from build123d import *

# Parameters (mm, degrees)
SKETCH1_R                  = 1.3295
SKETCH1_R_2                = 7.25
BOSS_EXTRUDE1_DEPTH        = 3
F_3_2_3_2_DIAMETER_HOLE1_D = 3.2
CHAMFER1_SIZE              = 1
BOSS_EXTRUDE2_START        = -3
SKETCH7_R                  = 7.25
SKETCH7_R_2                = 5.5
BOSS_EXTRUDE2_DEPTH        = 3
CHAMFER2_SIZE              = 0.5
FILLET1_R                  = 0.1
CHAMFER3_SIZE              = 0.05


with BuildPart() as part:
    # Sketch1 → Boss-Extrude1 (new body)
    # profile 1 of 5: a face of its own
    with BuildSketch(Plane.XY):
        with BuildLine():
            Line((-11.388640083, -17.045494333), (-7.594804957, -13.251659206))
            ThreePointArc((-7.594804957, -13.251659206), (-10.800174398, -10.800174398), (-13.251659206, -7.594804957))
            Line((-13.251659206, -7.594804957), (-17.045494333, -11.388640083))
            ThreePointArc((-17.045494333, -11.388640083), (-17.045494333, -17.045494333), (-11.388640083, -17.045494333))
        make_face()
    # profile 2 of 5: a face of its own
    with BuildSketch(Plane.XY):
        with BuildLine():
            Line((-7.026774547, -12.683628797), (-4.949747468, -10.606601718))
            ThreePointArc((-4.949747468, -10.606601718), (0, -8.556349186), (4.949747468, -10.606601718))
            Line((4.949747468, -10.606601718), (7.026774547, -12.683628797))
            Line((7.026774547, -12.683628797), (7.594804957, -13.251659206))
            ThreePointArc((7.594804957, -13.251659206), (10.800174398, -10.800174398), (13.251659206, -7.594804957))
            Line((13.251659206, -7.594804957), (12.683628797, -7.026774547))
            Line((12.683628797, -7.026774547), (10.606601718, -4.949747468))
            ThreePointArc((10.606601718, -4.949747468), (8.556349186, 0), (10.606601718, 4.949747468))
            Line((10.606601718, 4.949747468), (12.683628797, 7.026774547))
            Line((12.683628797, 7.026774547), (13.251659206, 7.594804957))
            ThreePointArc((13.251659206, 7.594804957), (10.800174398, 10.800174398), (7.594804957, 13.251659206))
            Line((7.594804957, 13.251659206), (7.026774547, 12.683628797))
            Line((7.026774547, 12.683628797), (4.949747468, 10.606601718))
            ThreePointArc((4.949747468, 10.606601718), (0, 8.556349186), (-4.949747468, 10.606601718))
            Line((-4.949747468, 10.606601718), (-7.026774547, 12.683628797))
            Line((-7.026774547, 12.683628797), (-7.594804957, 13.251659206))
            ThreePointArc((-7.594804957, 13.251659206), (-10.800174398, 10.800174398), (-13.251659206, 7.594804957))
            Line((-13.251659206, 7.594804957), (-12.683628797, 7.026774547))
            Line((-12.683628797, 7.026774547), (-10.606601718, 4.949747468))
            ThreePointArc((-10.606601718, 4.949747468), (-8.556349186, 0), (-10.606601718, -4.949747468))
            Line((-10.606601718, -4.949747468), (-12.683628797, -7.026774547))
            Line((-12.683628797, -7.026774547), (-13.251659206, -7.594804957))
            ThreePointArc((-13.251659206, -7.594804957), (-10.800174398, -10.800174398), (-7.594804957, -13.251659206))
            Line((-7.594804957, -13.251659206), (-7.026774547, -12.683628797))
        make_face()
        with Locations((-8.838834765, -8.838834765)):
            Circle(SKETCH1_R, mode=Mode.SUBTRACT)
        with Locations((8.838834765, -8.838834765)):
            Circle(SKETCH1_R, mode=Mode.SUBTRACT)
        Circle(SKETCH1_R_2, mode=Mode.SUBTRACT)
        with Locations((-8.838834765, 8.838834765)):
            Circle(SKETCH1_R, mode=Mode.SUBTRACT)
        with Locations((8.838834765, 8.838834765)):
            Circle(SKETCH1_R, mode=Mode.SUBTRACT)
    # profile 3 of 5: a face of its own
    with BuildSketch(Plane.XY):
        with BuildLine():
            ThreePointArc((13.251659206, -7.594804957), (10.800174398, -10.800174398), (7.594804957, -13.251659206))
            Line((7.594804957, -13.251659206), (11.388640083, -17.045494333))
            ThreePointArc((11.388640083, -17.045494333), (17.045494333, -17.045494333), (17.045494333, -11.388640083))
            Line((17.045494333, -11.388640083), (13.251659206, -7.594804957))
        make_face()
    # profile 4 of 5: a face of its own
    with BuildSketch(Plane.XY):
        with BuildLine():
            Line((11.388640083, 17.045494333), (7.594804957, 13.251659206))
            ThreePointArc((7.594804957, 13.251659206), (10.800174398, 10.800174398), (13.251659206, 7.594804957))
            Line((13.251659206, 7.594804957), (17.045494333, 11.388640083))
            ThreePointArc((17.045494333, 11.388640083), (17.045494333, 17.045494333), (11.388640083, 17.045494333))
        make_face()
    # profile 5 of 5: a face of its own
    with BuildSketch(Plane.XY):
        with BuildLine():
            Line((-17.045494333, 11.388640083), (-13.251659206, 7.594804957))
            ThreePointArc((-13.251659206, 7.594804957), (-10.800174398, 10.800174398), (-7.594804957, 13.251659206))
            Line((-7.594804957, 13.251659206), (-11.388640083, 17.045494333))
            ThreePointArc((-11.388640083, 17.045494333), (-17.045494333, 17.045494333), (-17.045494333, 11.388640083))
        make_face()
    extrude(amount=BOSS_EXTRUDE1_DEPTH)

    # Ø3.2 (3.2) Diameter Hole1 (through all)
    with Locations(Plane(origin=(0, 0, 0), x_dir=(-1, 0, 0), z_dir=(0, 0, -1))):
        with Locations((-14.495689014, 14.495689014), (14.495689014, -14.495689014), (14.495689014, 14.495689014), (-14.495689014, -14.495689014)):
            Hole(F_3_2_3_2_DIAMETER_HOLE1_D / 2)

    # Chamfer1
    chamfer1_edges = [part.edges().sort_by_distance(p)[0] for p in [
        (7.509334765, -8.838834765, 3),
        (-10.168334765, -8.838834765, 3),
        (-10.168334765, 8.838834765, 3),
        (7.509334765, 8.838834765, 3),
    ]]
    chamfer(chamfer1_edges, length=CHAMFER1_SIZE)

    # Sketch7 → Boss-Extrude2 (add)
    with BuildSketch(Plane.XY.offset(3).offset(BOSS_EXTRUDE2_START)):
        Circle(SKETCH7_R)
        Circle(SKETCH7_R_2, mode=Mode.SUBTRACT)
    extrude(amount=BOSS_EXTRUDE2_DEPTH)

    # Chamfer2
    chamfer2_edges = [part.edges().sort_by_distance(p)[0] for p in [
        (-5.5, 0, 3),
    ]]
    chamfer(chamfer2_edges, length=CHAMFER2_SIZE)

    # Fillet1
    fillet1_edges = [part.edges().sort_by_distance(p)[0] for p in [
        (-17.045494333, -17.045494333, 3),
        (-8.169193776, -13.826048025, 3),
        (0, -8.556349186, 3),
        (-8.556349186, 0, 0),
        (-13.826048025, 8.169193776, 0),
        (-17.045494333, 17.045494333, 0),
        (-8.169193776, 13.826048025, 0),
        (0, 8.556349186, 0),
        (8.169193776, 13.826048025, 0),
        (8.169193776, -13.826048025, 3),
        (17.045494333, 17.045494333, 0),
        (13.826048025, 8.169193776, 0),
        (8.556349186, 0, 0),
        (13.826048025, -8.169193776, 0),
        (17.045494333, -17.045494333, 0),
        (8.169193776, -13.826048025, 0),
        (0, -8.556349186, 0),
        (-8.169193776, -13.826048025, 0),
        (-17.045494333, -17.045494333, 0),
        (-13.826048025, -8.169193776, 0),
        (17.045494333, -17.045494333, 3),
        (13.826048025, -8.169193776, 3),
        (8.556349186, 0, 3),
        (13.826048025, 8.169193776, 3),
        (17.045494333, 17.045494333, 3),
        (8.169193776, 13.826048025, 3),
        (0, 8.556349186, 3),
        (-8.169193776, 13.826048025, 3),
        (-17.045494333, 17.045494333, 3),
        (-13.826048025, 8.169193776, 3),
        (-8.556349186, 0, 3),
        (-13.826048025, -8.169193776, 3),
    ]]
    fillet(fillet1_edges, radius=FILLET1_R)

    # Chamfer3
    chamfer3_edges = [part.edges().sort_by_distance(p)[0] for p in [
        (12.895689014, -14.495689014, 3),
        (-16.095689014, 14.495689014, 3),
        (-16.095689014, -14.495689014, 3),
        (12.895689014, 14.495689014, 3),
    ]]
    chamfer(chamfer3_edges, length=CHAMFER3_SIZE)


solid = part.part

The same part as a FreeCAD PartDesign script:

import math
import FreeCAD as App
import Part
import Sketcher

V = App.Vector


def edges_at(feature, points):
    """Names of the edges that pass closest to the given points."""
    edges = feature.Shape.Edges
    near = lambda p: min(range(len(edges)), key=lambda i: edges[i].distToShape(Part.Vertex(*p))[0])
    return sorted({f"Edge{near(p) + 1}" for p in points})

doc = App.newDocument("Part")
body = doc.addObject("PartDesign::Body", "Body")

# Sketch on XY plane
sketch1 = body.newObject("Sketcher::SketchObject", "Sketch")
sketch1.AttachmentSupport = (doc.getObject("XY_Plane"), [""])
sketch1.MapMode = "FlatFace"
sketch1.addGeometry(Part.LineSegment(V(-11.4, -17, 0), V(-7.6, -13.3, 0)), False)
sketch1.addGeometry(Part.LineSegment(V(-7.6, -13.3, 0), V(-7, -12.7, 0)), False)
sketch1.addGeometry(Part.LineSegment(V(-7, -12.7, 0), V(-4.9, -10.6, 0)), False)
sketch1.addGeometry(Part.ArcOfCircle(Part.Circle(V(0, -15.6, 0), V(0, 0, 1), 7), math.radians(45), math.radians(135)), False)
sketch1.addGeometry(Part.LineSegment(V(4.9, -10.6, 0), V(7, -12.7, 0)), False)
sketch1.addGeometry(Part.LineSegment(V(7, -12.7, 0), V(7.6, -13.3, 0)), False)
sketch1.addGeometry(Part.LineSegment(V(7.6, -13.3, 0), V(11.4, -17, 0)), False)
sketch1.addGeometry(Part.ArcOfCircle(Part.Circle(V(14.2, -14.2, 0), V(0, 0, 1), 4), math.radians(-135), math.radians(45)), False)
sketch1.addGeometry(Part.LineSegment(V(17, -11.4, 0), V(13.3, -7.6, 0)), False)
sketch1.addGeometry(Part.LineSegment(V(13.3, -7.6, 0), V(12.7, -7, 0)), False)
sketch1.addGeometry(Part.LineSegment(V(12.7, -7, 0), V(10.6, -4.9, 0)), False)
sketch1.addGeometry(Part.ArcOfCircle(Part.Circle(V(15.6, 0, 0), V(0, 0, 1), 7), math.radians(135), math.radians(225)), False)
sketch1.addGeometry(Part.LineSegment(V(10.6, 4.9, 0), V(12.7, 7, 0)), False)
sketch1.addGeometry(Part.LineSegment(V(12.7, 7, 0), V(13.3, 7.6, 0)), False)
sketch1.addGeometry(Part.LineSegment(V(13.3, 7.6, 0), V(17, 11.4, 0)), False)
sketch1.addGeometry(Part.ArcOfCircle(Part.Circle(V(14.2, 14.2, 0), V(0, 0, 1), 4), math.radians(-45), math.radians(135)), False)
sketch1.addGeometry(Part.LineSegment(V(11.4, 17, 0), V(7.6, 13.3, 0)), False)
sketch1.addGeometry(Part.LineSegment(V(7.6, 13.3, 0), V(7, 12.7, 0)), False)
sketch1.addGeometry(Part.LineSegment(V(7, 12.7, 0), V(4.9, 10.6, 0)), False)
sketch1.addGeometry(Part.ArcOfCircle(Part.Circle(V(0, 15.6, 0), V(0, 0, 1), 7), math.radians(-135), math.radians(-45)), False)
sketch1.addGeometry(Part.LineSegment(V(-4.9, 10.6, 0), V(-7, 12.7, 0)), False)
sketch1.addGeometry(Part.LineSegment(V(-7, 12.7, 0), V(-7.6, 13.3, 0)), False)
sketch1.addGeometry(Part.LineSegment(V(-7.6, 13.3, 0), V(-11.4, 17, 0)), False)
sketch1.addGeometry(Part.ArcOfCircle(Part.Circle(V(-14.2, 14.2, 0), V(0, 0, 1), 4), math.radians(45), math.radians(225)), False)
sketch1.addGeometry(Part.LineSegment(V(-17, 11.4, 0), V(-13.3, 7.6, 0)), False)
sketch1.addGeometry(Part.LineSegment(V(-13.3, 7.6, 0), V(-12.7, 7, 0)), False)
sketch1.addGeometry(Part.LineSegment(V(-12.7, 7, 0), V(-10.6, 4.9, 0)), False)
sketch1.addGeometry(Part.ArcOfCircle(Part.Circle(V(-15.6, 0, 0), V(0, 0, 1), 7), math.radians(-45), math.radians(45)), False)
sketch1.addGeometry(Part.LineSegment(V(-10.6, -4.9, 0), V(-12.7, -7, 0)), False)
sketch1.addGeometry(Part.LineSegment(V(-12.7, -7, 0), V(-13.3, -7.6, 0)), False)
sketch1.addGeometry(Part.LineSegment(V(-13.3, -7.6, 0), V(-17, -11.4, 0)), False)
sketch1.addGeometry(Part.ArcOfCircle(Part.Circle(V(-14.2, -14.2, 0), V(0, 0, 1), 4), math.radians(135), math.radians(315)), False)
sketch1.addGeometry(Part.Circle(V(8.8, 8.8, 0), V(0, 0, 1), 1.3), False)
sketch1.addGeometry(Part.Circle(V(-8.8, -8.8, 0), V(0, 0, 1), 1.3), False)
sketch1.addGeometry(Part.Circle(V(8.8, -8.8, 0), V(0, 0, 1), 1.3), False)
sketch1.addGeometry(Part.Circle(V(-8.8, 8.8, 0), V(0, 0, 1), 1.3), False)
sketch1.addGeometry(Part.Circle(V(0, 0, 0), V(0, 0, 1), 7.2), False)
sketch1.addConstraint(Sketcher.Constraint("Coincident", 0, 2, 1, 1))
sketch1.addConstraint(Sketcher.Constraint("Coincident", 1, 2, 2, 1))
sketch1.addConstraint(Sketcher.Constraint("Tangent", 2, 2, 3, 2))
sketch1.addConstraint(Sketcher.Constraint("Tangent", 3, 1, 4, 1))
sketch1.addConstraint(Sketcher.Constraint("Coincident", 4, 2, 5, 1))
sketch1.addConstraint(Sketcher.Constraint("Coincident", 5, 2, 6, 1))
sketch1.addConstraint(Sketcher.Constraint("Tangent", 6, 2, 7, 1))
sketch1.addConstraint(Sketcher.Constraint("Tangent", 7, 2, 8, 1))
sketch1.addConstraint(Sketcher.Constraint("Coincident", 8, 2, 9, 1))
sketch1.addConstraint(Sketcher.Constraint("Coincident", 9, 2, 10, 1))
sketch1.addConstraint(Sketcher.Constraint("Tangent", 10, 2, 11, 2))
sketch1.addConstraint(Sketcher.Constraint("Tangent", 11, 1, 12, 1))
sketch1.addConstraint(Sketcher.Constraint("Coincident", 12, 2, 13, 1))
sketch1.addConstraint(Sketcher.Constraint("Coincident", 13, 2, 14, 1))
sketch1.addConstraint(Sketcher.Constraint("Tangent", 14, 2, 15, 1))
sketch1.addConstraint(Sketcher.Constraint("Tangent", 15, 2, 16, 1))
sketch1.addConstraint(Sketcher.Constraint("Coincident", 16, 2, 17, 1))
sketch1.addConstraint(Sketcher.Constraint("Coincident", 17, 2, 18, 1))
sketch1.addConstraint(Sketcher.Constraint("Tangent", 18, 2, 19, 2))
sketch1.addConstraint(Sketcher.Constraint("Tangent", 19, 1, 20, 1))
sketch1.addConstraint(Sketcher.Constraint("Coincident", 20, 2, 21, 1))
sketch1.addConstraint(Sketcher.Constraint("Coincident", 21, 2, 22, 1))
sketch1.addConstraint(Sketcher.Constraint("Tangent", 22, 2, 23, 1))
sketch1.addConstraint(Sketcher.Constraint("Tangent", 23, 2, 24, 1))
sketch1.addConstraint(Sketcher.Constraint("Coincident", 24, 2, 25, 1))
sketch1.addConstraint(Sketcher.Constraint("Coincident", 25, 2, 26, 1))
sketch1.addConstraint(Sketcher.Constraint("Tangent", 26, 2, 27, 2))
sketch1.addConstraint(Sketcher.Constraint("Tangent", 27, 1, 28, 1))
sketch1.addConstraint(Sketcher.Constraint("Coincident", 28, 2, 29, 1))
sketch1.addConstraint(Sketcher.Constraint("Coincident", 29, 2, 30, 1))
sketch1.addConstraint(Sketcher.Constraint("Tangent", 30, 2, 31, 1))
sketch1.addConstraint(Sketcher.Constraint("Tangent", 31, 2, 0, 1))
sketch1.addConstraint(Sketcher.Constraint("Coincident", 36, 3, -1, 1))
sketch1.addConstraint(Sketcher.Constraint("Equal", 3, 11))
sketch1.addConstraint(Sketcher.Constraint("Equal", 7, 15))
sketch1.addConstraint(Sketcher.Constraint("Equal", 11, 19))
sketch1.addConstraint(Sketcher.Constraint("Equal", 15, 23))
sketch1.addConstraint(Sketcher.Constraint("Equal", 19, 27))
sketch1.addConstraint(Sketcher.Constraint("Equal", 23, 31))
sketch1.addConstraint(Sketcher.Constraint("Equal", 32, 33))
sketch1.addConstraint(Sketcher.Constraint("Equal", 33, 34))
sketch1.addConstraint(Sketcher.Constraint("Equal", 34, 35))
sketch1.addConstraint(Sketcher.Constraint("Symmetric", 3, 3, 19, 3, -1, 1))
sketch1.addConstraint(Sketcher.Constraint("Symmetric", 7, 3, 23, 3, -1, 1))
sketch1.addConstraint(Sketcher.Constraint("Symmetric", 11, 3, 27, 3, -1, 1))
sketch1.addConstraint(Sketcher.Constraint("Symmetric", 15, 3, 31, 3, -1, 1))
sketch1.addConstraint(Sketcher.Constraint("Symmetric", 32, 3, 33, 3, -1, 1))
sketch1.addConstraint(Sketcher.Constraint("Symmetric", 34, 3, 35, 3, -1, 1))
sketch1.addConstraint(Sketcher.Constraint("Symmetric", 0, 2, 16, 2, -1, 1))
sketch1.addConstraint(Sketcher.Constraint("Symmetric", 1, 2, 17, 2, -1, 1))
sketch1.addConstraint(Sketcher.Constraint("Symmetric", 4, 2, 20, 2, -1, 1))
sketch1.addConstraint(Sketcher.Constraint("Symmetric", 5, 2, 21, 2, -1, 1))
sketch1.addConstraint(Sketcher.Constraint("Symmetric", 8, 2, 24, 2, -1, 1))
sketch1.addConstraint(Sketcher.Constraint("Symmetric", 9, 2, 25, 2, -1, 1))
sketch1.addConstraint(Sketcher.Constraint("Symmetric", 12, 2, 28, 2, -1, 1))
sketch1.addConstraint(Sketcher.Constraint("Symmetric", 13, 2, 29, 2, -1, 1))
sketch1.addConstraint(Sketcher.Constraint("Symmetric", 15, 3, 23, 3, -2))
sketch1.addConstraint(Sketcher.Constraint("Symmetric", 33, 3, 34, 3, -2))
sketch1.addConstraint(Sketcher.Constraint("Symmetric", 2, 2, 3, 1, -2))
sketch1.addConstraint(Sketcher.Constraint("Symmetric", 0, 2, 5, 2, -2))
sketch1.addConstraint(Sketcher.Constraint("Symmetric", 13, 2, 24, 2, -2))
sketch1.addConstraint(Sketcher.Constraint("Symmetric", 12, 2, 25, 2, -2))
sketch1.addConstraint(Sketcher.Constraint("PointOnObject", 11, 3, -1))
sketch1.addConstraint(Sketcher.Constraint("Parallel", 0, 1))
sketch1.addConstraint(Sketcher.Constraint("Parallel", 1, 2))
sketch1.addConstraint(Sketcher.Constraint("Perpendicular", 2, 4))
sketch1.addConstraint(Sketcher.Constraint("Parallel", 6, 8))
sketch1.addConstraint(Sketcher.Constraint("Parallel", 8, 9))
sketch1.addConstraint(Sketcher.Constraint("Parallel", 9, 10))
sketch1.addConstraint(Sketcher.Constraint("Horizontal", 1, 2, 4, 2))
sketch1.addConstraint(Sketcher.Constraint("Equal", 6, 8))
sketch1.addConstraint(Sketcher.Constraint("Equal", 5, 9))
sketch1.addConstraint(Sketcher.Constraint("Equal", 4, 10))
sketch1.addConstraint(Sketcher.Constraint("Radius", 3, 7.0))
sketch1.addConstraint(Sketcher.Constraint("Radius", 7, 4.0))
sketch1.addConstraint(Sketcher.Constraint("Diameter", 36, 14.5))
sketch1.addConstraint(Sketcher.Constraint("Diameter", 32, 2.659))
sketch1.addConstraint(Sketcher.Constraint("DistanceY", 7, 3, 32, 3, 23.055902))
sketch1.addConstraint(Sketcher.Constraint("DistanceX", 23, 3, 32, 3, 23.055902))
sketch1.addConstraint(Sketcher.Constraint("Distance", 2, 2.93736))
sketch1.addConstraint(Sketcher.Constraint("DistanceY", 0, 2, -1, 1, 13.251659))
sketch1.addConstraint(Sketcher.Constraint("DistanceX", -1, 1, 6, 2, 11.38864))
pad1 = body.newObject("PartDesign::Pad", "Pad")
pad1.Profile = sketch1
pad1.Length = 3

# Sketch on XY plane
sketch2 = body.newObject("Sketcher::SketchObject", "Sketch001")
sketch2.AttachmentSupport = (doc.getObject("XY_Plane"), [""])
sketch2.MapMode = "FlatFace"
sketch2.addGeometry(Part.Circle(V(14.5, 14.5, 0), V(0, 0, 1), 1.6), False)
sketch2.addGeometry(Part.Circle(V(-14.5, -14.5, 0), V(0, 0, 1), 1.6), False)
sketch2.addGeometry(Part.Circle(V(-14.5, 14.5, 0), V(0, 0, 1), 1.6), False)
sketch2.addGeometry(Part.Circle(V(14.5, -14.5, 0), V(0, 0, 1), 1.6), False)
sketch2.addConstraint(Sketcher.Constraint("Equal", 0, 1))
sketch2.addConstraint(Sketcher.Constraint("Equal", 1, 2))
sketch2.addConstraint(Sketcher.Constraint("Equal", 2, 3))
sketch2.addConstraint(Sketcher.Constraint("Symmetric", 0, 3, 1, 3, -1, 1))
sketch2.addConstraint(Sketcher.Constraint("Symmetric", 2, 3, 3, 3, -1, 1))
sketch2.addConstraint(Sketcher.Constraint("Symmetric", 0, 3, 2, 3, -2))
sketch2.addConstraint(Sketcher.Constraint("Diameter", 0, 3.2))
sketch2.addConstraint(Sketcher.Constraint("DistanceX", -1, 1, 0, 3, 14.495689))
sketch2.addConstraint(Sketcher.Constraint("DistanceY", -1, 1, 0, 3, 14.495689))
doc.recompute()
hole = body.newObject("PartDesign::Hole", "Hole")
hole.Profile = sketch2
hole.ThreadType = "None"
hole.Diameter = 3.2
hole.DepthType = "ThroughAll"
hole.Reversed = True
doc.recompute()

chamfer = body.newObject("PartDesign::Chamfer", "Chamfer")
chamfer.Base = (hole, edges_at(hole, [
    (7.509, -8.839, 3),
    (-10.168, -8.839, 3),
    (-10.168, 8.839, 3),
    (7.509, 8.839, 3),
]))
chamfer.Size = 1

# Sketch on XY plane
sketch3 = body.newObject("Sketcher::SketchObject", "Sketch002")
sketch3.AttachmentSupport = (doc.getObject("XY_Plane"), [""])
sketch3.MapMode = "FlatFace"
sketch3.addGeometry(Part.Circle(V(0, 0, 0), V(0, 0, 1), 7), False)
sketch3.addGeometry(Part.Circle(V(0, 0, 0), V(0, 0, 1), 6), False)
sketch3.addConstraint(Sketcher.Constraint("Coincident", 0, 3, -1, 1))
sketch3.addConstraint(Sketcher.Constraint("Coincident", 1, 3, -1, 1))
sketch3.addConstraint(Sketcher.Constraint("Diameter", 1, 11.0))
sketch3.addConstraint(Sketcher.Constraint("Diameter", 0, 14.5))
pad2 = body.newObject("PartDesign::Pad", "Pad001")
pad2.Profile = sketch3
pad2.Length = 3
doc.recompute()

chamfer2 = body.newObject("PartDesign::Chamfer", "Chamfer001")
chamfer2.Base = (pad2, edges_at(pad2, [(-5.5, 0, 3)]))
chamfer2.Size = 0.5
doc.recompute()

fillet = body.newObject("PartDesign::Fillet", "Fillet")
fillet.Base = (chamfer2, edges_at(chamfer2, [
    (-17.045, -17.045, 3),
    (-9.492, -15.149, 3),
    (0, -8.556, 3),
    (-8.556, 0, 0),
    (-15.149, 9.492, 0),
    (-17.045, 17.045, 0),
    (-9.492, 15.149, 0),
    (0, 8.556, 0),
    (9.492, 15.149, 0),
    (9.492, -15.149, 3),
    (17.045, 17.045, 0),
    (15.149, 9.492, 0),
    (8.556, 0, 0),
    (15.149, -9.492, 0),
    (17.045, -17.045, 0),
    (9.492, -15.149, 0),
    (0, -8.556, 0),
    (-9.492, -15.149, 0),
    (-17.045, -17.045, 0),
    (-15.149, -9.492, 0),
    (17.045, -17.045, 3),
    (15.149, -9.492, 3),
    (8.556, 0, 3),
    (15.149, 9.492, 3),
    (17.045, 17.045, 3),
    (9.492, 15.149, 3),
    (0, 8.556, 3),
    (-9.492, 15.149, 3),
    (-17.045, 17.045, 3),
    (-15.149, 9.492, 3),
    (-8.556, 0, 3),
    (-15.149, -9.492, 3),
]))
fillet.Radius = 0.1
doc.recompute()

chamfer3 = body.newObject("PartDesign::Chamfer", "Chamfer002")
chamfer3.Base = (fillet, edges_at(fillet, [
    (12.896, -14.496, 3),
    (-16.096, 14.496, 3),
    (-16.096, -14.496, 3),
    (12.896, 14.496, 3),
]))
chamfer3.Size = 0.05

doc.recompute()
